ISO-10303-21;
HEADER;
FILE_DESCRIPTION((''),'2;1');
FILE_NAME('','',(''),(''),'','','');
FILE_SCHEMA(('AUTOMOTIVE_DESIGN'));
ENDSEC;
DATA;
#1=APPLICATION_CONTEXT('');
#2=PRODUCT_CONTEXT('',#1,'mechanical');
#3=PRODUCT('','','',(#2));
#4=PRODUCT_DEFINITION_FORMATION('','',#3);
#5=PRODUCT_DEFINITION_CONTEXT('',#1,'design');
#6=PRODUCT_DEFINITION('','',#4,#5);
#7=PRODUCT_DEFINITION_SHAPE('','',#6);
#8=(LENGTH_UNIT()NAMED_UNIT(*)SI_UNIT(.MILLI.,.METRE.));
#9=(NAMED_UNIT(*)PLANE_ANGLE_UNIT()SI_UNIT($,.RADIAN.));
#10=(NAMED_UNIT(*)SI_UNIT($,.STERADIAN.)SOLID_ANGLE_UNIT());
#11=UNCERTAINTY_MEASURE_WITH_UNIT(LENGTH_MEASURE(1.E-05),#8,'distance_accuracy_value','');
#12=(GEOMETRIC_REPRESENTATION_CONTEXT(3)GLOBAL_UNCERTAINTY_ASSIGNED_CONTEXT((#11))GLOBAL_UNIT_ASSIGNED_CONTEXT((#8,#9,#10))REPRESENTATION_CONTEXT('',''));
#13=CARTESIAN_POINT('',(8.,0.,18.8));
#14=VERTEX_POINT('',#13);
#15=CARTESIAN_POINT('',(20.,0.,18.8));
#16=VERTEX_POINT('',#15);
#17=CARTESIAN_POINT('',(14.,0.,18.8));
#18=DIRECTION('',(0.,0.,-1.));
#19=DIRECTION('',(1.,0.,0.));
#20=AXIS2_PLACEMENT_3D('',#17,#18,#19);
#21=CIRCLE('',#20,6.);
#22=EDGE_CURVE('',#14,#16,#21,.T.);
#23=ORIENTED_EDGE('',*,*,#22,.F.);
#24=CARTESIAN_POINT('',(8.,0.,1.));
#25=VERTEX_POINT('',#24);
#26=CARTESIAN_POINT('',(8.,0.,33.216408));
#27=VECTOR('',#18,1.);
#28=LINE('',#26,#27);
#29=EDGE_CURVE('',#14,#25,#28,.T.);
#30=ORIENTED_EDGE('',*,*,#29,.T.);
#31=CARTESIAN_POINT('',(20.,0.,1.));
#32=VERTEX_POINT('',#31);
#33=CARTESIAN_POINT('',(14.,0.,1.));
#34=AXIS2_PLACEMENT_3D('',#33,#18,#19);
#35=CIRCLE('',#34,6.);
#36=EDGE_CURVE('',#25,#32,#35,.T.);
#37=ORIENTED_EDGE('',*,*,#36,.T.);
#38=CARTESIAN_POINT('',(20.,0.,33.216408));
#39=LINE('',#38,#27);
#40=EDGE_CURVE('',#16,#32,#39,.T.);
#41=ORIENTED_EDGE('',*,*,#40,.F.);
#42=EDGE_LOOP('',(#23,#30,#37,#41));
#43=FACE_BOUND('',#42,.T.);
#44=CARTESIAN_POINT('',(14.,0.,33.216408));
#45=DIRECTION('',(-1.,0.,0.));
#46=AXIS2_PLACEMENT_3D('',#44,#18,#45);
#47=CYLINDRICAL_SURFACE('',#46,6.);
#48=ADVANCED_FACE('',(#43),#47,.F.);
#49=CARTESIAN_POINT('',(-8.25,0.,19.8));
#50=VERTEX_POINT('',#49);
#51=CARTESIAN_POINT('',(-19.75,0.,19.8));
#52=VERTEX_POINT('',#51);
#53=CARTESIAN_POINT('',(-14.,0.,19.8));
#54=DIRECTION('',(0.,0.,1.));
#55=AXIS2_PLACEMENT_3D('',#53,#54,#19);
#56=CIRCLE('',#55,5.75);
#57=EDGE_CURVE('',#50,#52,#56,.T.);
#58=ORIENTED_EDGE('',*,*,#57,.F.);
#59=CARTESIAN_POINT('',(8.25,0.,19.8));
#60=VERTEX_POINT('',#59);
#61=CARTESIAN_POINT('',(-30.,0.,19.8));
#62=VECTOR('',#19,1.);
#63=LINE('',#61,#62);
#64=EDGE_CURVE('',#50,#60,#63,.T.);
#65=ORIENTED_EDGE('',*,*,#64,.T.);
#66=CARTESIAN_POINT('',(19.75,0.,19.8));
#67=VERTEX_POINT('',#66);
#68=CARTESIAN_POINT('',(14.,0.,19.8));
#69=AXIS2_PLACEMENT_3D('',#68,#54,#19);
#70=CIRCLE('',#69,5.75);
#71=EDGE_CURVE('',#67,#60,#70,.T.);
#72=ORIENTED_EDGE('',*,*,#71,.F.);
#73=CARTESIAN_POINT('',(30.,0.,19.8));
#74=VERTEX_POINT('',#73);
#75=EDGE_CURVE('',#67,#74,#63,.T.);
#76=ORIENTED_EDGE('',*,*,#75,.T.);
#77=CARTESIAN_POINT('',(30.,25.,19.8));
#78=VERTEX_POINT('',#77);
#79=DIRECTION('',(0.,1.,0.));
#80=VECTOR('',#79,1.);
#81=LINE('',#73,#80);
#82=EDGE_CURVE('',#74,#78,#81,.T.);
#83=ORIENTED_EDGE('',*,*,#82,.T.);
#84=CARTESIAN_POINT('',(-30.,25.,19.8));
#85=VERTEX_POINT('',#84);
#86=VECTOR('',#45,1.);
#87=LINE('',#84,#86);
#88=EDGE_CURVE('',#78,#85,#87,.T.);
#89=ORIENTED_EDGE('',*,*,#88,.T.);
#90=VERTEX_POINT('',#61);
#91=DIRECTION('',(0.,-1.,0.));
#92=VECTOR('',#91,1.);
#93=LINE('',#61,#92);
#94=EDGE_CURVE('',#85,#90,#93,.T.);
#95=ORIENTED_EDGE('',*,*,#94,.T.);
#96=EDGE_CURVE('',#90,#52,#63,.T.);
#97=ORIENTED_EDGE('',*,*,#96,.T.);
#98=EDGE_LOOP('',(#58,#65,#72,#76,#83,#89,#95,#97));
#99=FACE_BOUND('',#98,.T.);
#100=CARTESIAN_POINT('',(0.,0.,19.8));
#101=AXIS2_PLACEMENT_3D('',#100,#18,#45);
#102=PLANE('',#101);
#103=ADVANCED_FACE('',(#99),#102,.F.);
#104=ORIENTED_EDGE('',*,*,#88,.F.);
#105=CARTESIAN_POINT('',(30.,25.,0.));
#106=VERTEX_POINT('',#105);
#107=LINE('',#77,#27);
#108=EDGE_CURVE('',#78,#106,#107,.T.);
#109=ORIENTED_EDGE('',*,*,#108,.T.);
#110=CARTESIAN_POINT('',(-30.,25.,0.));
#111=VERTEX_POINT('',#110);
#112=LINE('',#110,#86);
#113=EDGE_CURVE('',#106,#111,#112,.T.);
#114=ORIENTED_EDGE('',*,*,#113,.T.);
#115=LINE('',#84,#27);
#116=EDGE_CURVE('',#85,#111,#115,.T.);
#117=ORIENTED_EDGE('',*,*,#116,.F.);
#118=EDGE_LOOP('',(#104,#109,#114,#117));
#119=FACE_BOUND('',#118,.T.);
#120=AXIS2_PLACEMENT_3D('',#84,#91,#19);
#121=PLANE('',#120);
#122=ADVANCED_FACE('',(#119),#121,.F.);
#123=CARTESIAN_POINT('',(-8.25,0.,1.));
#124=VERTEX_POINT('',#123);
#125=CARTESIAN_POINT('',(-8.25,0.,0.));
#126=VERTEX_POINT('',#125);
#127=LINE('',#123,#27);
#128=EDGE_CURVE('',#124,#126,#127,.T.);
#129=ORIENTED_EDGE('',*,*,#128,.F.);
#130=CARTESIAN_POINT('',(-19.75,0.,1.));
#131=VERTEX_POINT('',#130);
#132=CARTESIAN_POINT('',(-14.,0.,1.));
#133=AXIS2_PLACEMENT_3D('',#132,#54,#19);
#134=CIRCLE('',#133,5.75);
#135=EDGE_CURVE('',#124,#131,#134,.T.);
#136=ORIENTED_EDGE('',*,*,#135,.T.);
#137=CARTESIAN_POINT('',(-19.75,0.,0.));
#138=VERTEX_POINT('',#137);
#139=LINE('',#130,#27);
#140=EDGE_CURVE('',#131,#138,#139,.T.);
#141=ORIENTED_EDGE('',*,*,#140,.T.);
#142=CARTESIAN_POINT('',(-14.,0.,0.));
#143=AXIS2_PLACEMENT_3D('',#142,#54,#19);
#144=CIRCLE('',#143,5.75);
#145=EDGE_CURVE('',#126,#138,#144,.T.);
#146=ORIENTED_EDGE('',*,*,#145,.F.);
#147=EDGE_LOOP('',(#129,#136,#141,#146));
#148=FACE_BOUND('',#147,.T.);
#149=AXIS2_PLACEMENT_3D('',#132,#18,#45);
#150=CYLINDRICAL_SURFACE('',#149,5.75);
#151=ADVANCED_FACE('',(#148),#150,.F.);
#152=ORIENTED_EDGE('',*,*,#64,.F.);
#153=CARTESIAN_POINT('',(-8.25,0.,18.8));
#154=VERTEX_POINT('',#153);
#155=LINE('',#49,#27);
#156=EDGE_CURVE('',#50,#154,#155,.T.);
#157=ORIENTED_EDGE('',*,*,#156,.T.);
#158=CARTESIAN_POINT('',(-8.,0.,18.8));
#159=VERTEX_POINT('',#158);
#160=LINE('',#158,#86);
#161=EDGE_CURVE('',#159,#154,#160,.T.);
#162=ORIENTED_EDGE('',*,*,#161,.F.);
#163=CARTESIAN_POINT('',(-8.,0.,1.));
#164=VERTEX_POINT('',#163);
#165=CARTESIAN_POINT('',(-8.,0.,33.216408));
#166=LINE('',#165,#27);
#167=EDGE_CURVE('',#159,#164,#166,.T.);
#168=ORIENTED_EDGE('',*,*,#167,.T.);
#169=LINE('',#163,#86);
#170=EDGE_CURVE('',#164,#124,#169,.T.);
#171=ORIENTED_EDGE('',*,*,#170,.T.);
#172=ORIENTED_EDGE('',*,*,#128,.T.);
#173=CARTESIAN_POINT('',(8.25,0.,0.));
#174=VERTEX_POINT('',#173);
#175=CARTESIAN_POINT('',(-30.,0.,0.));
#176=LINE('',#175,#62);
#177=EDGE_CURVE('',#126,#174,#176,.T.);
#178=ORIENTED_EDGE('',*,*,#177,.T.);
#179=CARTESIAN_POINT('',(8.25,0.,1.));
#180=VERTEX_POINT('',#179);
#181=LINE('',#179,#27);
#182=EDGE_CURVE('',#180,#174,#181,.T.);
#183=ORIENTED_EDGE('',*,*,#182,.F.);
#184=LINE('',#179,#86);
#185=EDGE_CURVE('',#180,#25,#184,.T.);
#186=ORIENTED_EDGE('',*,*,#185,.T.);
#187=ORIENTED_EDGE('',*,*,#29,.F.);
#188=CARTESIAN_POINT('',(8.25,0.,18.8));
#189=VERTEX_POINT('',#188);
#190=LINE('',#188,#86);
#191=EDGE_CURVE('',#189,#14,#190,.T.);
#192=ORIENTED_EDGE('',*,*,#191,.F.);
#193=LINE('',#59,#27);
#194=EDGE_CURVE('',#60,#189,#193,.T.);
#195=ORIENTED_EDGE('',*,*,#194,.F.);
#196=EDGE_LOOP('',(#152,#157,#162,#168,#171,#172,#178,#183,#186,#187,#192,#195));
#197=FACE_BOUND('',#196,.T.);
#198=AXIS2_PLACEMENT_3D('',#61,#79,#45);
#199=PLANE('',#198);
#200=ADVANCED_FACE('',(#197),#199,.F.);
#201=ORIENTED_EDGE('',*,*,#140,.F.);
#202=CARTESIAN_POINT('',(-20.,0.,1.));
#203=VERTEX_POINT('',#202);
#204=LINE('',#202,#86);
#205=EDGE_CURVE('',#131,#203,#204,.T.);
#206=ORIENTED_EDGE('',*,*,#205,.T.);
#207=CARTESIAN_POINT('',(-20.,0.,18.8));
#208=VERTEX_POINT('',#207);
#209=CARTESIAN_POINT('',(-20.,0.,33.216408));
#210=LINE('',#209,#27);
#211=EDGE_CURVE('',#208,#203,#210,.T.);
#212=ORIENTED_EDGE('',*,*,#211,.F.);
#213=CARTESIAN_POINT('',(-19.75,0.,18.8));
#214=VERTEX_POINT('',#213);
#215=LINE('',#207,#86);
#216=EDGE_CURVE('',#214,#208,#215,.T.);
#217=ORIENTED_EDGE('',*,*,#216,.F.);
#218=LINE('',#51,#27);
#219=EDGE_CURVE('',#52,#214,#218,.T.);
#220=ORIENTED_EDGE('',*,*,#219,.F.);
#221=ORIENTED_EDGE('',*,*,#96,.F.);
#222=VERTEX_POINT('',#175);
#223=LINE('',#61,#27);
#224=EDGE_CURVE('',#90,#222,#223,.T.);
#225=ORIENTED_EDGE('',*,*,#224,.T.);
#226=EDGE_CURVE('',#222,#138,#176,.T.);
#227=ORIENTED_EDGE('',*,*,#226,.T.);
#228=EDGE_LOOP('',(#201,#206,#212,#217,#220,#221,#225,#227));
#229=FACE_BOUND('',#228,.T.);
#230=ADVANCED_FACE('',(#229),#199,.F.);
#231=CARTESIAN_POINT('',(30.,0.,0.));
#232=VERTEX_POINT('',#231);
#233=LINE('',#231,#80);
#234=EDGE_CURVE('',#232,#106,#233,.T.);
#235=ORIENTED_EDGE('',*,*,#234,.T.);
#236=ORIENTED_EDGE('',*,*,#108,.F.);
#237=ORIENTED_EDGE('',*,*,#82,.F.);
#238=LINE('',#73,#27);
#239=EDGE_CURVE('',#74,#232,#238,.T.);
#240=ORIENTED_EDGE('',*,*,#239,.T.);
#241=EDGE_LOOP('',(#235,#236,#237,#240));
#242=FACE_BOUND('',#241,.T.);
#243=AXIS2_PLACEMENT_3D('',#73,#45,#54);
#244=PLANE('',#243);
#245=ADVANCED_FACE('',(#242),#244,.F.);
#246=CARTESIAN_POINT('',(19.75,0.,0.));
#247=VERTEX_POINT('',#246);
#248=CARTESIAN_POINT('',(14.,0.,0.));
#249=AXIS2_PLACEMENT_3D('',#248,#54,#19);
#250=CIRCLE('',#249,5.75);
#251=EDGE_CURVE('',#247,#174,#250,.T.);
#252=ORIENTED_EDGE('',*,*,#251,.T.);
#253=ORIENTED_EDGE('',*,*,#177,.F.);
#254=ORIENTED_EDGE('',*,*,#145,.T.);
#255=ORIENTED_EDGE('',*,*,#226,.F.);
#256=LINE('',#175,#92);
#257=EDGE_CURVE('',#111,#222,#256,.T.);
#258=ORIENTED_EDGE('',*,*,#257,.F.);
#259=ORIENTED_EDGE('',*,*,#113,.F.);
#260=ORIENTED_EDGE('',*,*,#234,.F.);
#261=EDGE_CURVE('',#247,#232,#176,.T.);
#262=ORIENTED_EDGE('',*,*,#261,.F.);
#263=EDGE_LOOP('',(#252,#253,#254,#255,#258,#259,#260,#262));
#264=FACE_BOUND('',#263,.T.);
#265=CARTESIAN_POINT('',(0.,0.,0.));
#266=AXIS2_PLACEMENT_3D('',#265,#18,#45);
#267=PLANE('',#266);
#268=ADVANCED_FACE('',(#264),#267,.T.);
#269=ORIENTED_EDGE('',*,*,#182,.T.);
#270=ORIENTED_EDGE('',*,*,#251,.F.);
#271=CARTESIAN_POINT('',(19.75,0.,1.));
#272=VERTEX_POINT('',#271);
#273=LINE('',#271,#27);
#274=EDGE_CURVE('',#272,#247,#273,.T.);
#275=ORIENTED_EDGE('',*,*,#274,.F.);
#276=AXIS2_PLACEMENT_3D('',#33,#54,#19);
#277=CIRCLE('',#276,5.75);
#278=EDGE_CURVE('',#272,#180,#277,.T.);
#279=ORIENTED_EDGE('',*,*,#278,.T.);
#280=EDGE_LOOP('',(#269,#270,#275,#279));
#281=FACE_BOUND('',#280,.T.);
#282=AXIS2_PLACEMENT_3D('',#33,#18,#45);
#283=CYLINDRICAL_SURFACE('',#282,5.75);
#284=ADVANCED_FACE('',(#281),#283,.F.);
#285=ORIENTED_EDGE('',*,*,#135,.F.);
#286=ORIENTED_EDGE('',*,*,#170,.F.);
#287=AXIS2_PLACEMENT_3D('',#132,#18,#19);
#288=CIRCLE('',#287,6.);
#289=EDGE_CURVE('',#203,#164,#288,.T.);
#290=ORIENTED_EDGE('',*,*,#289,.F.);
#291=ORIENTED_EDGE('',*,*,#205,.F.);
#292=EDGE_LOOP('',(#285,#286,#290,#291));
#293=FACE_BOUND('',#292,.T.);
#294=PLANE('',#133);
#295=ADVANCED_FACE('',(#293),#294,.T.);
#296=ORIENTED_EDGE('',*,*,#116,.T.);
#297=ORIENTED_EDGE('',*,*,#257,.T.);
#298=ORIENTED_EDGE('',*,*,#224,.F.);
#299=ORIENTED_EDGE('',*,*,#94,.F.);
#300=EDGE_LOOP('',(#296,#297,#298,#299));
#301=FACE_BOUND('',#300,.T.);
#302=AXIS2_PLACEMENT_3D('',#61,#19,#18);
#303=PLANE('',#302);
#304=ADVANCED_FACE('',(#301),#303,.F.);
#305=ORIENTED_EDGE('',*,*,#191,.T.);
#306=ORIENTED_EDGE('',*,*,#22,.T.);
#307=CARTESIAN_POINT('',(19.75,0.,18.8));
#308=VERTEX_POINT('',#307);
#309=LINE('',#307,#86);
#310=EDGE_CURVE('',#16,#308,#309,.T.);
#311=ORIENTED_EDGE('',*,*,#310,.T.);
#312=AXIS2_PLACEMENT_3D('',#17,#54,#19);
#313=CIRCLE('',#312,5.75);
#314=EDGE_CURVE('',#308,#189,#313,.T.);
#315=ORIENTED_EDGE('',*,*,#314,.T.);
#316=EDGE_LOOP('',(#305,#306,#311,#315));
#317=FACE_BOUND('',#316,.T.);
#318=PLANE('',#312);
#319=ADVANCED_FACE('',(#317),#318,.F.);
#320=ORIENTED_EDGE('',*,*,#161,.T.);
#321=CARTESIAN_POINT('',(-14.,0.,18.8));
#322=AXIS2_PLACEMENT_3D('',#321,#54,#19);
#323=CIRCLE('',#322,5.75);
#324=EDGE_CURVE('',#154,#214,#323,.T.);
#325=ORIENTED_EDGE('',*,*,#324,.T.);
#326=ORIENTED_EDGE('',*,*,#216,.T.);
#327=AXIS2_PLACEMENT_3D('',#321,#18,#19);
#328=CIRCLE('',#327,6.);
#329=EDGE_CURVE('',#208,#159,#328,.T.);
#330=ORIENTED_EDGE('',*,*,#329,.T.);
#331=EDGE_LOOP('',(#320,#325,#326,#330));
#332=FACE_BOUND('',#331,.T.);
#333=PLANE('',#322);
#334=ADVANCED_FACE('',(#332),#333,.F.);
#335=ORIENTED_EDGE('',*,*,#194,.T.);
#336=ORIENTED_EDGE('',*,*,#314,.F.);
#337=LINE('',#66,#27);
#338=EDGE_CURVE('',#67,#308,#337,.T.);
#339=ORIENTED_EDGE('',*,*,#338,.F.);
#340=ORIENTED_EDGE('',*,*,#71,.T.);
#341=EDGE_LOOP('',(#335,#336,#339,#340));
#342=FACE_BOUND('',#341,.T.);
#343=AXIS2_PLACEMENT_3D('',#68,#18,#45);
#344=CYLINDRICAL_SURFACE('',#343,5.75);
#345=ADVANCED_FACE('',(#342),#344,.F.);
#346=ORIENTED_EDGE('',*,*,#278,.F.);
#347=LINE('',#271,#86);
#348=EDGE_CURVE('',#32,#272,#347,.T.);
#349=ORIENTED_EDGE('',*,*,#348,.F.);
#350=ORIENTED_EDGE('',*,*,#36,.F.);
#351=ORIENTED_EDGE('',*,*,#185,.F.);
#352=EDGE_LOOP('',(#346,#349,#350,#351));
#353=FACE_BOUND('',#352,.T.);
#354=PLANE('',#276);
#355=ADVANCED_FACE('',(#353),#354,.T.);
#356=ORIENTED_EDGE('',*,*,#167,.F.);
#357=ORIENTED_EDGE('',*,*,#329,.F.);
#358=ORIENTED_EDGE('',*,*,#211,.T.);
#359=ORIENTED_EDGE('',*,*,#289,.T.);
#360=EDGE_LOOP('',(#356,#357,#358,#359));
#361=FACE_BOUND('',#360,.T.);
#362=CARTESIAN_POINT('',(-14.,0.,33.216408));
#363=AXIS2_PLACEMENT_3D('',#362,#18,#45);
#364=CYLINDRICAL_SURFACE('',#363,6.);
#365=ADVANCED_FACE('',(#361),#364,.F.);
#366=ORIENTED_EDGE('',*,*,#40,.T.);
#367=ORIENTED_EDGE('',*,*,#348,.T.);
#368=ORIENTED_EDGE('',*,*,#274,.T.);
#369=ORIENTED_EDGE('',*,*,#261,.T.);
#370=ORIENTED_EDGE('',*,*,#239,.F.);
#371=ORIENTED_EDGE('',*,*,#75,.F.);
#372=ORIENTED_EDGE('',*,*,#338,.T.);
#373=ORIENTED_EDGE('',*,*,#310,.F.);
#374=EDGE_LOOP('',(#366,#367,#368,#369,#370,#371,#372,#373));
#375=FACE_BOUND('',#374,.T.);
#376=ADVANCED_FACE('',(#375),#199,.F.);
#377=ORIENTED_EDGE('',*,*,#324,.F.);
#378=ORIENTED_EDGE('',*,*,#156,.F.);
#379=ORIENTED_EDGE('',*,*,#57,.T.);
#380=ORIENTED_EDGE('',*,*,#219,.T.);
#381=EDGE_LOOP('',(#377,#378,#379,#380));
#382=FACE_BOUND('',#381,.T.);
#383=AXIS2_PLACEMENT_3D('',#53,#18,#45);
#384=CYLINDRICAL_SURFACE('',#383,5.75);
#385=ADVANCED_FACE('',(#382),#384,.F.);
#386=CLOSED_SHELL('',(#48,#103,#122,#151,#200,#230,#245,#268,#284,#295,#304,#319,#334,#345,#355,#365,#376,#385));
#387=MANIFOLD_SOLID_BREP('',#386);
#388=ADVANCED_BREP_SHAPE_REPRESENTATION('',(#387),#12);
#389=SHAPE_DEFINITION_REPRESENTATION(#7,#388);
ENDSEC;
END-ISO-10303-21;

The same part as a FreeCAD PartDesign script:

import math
import FreeCAD as App
import Part
import Sketcher
from FreeCAD import Vector
Q = App.Units.Quantity


def add_polygon(sketch, points):
    """Adds a closed chain of lines whose ends are joined by coincident constraints."""
    first, n = sketch.GeometryCount, len(points)
    for a, b in zip(points, points[1:] + points[:1]):
        sketch.addGeometry(Part.LineSegment(App.Vector(*a, 0), App.Vector(*b, 0)), False)
    for i in range(n):
        sketch.addConstraint(Sketcher.Constraint("Coincident", first + i, 2, first + (i + 1) % n, 1))

doc = App.newDocument("Part")
body = doc.addObject("PartDesign::Body", "Body")

# Sketch on XY plane
sketch1 = doc.addObject("Sketcher::SketchObject", "Sketch")
body.addObject(sketch1)
sketch1.AttachmentSupport = (doc.XY_Plane, [""])
sketch1.MapMode = "FlatFace"
add_polygon(sketch1, [(-30, 25), (-30, 0), (30, 0), (30, 25)])  # lines 0-3
sketch1.addConstraint([
    Sketcher.Constraint("Vertical", 0),
    Sketcher.Constraint("Horizontal", 1),
    Sketcher.Constraint("Vertical", 2),
    Sketcher.Constraint("Horizontal", 3),
    Sketcher.Constraint("Symmetric", 0, 2, 1, 2, -1, 1),
    Sketcher.Constraint("DistanceX", 1, 1, 1, 2, Q("60 mm")),
    Sketcher.Constraint("DistanceY", 0, 2, 0, 1, Q("25 mm")),
])
pad1 = doc.addObject("PartDesign::Pad", "Pad")
body.addObject(pad1)
pad1.Profile = sketch1
pad1.Length = 19.8

# Sketch on XY plane
sketch2 = doc.addObject("Sketcher::SketchObject", "Sketch001")
body.addObject(sketch2)
sketch2.AttachmentSupport = (doc.XY_Plane, [""])
sketch2.MapMode = "FlatFace"
sketch2.addGeometry([
    Part.LineSegment(Vector(20, 0, 0), Vector(8, 0, 0)),
    Part.ArcOfCircle(Part.Circle(Vector(14, 0, 0), Vector(0, 0, 1), 6), math.radians(0), math.radians(180)),
    Part.LineSegment(Vector(-8, 0, 0), Vector(-20, 0, 0)),
    Part.ArcOfCircle(Part.Circle(Vector(-14, 0, 0), Vector(0, 0, 1), 6), math.radians(0), math.radians(180)),
], False)
sketch2.addConstraint([
    Sketcher.Constraint("Coincident", 0, 1, 1, 1),
    Sketcher.Constraint("Coincident", 1, 2, 0, 2),
    Sketcher.Constraint("Coincident", 2, 1, 3, 1),
    Sketcher.Constraint("Coincident", 3, 2, 2, 2),
    Sketcher.Constraint("Horizontal", 0),
    Sketcher.Constraint("Horizontal", 2),
    Sketcher.Constraint("Equal", 1, 3),
    Sketcher.Constraint("Symmetric", 1, 3, 3, 3, -1, 1),
    Sketcher.Constraint("PointOnObject", 1, 3, -1),
    Sketcher.Constraint("PointOnObject", 0, 1, -1),
    Sketcher.Constraint("PointOnObject", 2, 1, -1),
    Sketcher.Constraint("Radius", 1, Q("6 mm")),
    Sketcher.Constraint("DistanceX", -1, 1, 1, 3, Q("14 mm")),
])
pocket1 = doc.addObject("PartDesign::Pocket", "Pocket")
body.addObject(pocket1)
pocket1.Profile = sketch2
pocket1.Length = 19.8
pocket1.Reversed = True

# Sketch on XY plane
sketch3 = doc.addObject("Sketcher::SketchObject", "Sketch002")
body.addObject(sketch3)
sketch3.AttachmentSupport = (doc.XY_Plane, [""])
sketch3.MapMode = "FlatFace"
sketch3.addGeometry([
    Part.LineSegment(Vector(20, 0, 0), Vector(19.75, 0, 0)),  # 0
    Part.ArcOfCircle(Part.Circle(Vector(14, 0, 0), Vector(0, 0, 1), 5.75), math.radians(0), math.radians(180)),  # 1
    Part.LineSegment(Vector(8.25, 0, 0), Vector(8, 0, 0)),  # 2
    Part.ArcOfCircle(Part.Circle(Vector(14, 0, 0), Vector(0, 0, 1), 6), math.radians(0), math.radians(180)),  # 3
    Part.LineSegment(Vector(-8, 0, 0), Vector(-8.25, 0, 0)),  # 4
    Part.ArcOfCircle(Part.Circle(Vector(-14, 0, 0), Vector(0, 0, 1), 5.75), math.radians(0), math.radians(180)),  # 5
    Part.LineSegment(Vector(-19.75, 0, 0), Vector(-20, 0, 0)),  # 6
    Part.ArcOfCircle(Part.Circle(Vector(-14, 0, 0), Vector(0, 0, 1), 6), math.radians(0), math.radians(180)),  # 7
], False)
sketch3.addConstraint([
    Sketcher.Constraint("Coincident", 0, 2, 1, 1),
    Sketcher.Constraint("Coincident", 1, 2, 2, 1),
    Sketcher.Constraint("Coincident", 2, 2, 3, 2),
    Sketcher.Constraint("Coincident", 3, 1, 0, 1),
    Sketcher.Constraint("Coincident", 4, 2, 5, 1),
    Sketcher.Constraint("Coincident", 5, 2, 6, 1),
    Sketcher.Constraint("Coincident", 6, 2, 7, 2),
    Sketcher.Constraint("Coincident", 7, 1, 4, 1),
    Sketcher.Constraint("Horizontal", 0),
    Sketcher.Constraint("Horizontal", 2),
    Sketcher.Constraint("Horizontal", 4),
    Sketcher.Constraint("Horizontal", 6),
    Sketcher.Constraint("Coincident", 3, 3, 1, 3),
    Sketcher.Constraint("Coincident", 7, 3, 5, 3),
    Sketcher.Constraint("Equal", 1, 5),
    Sketcher.Constraint("Equal", 3, 7),
    Sketcher.Constraint("Symmetric", 1, 3, 5, 3, -1, 1),
    Sketcher.Constraint("PointOnObject", 1, 3, -1),
    Sketcher.Constraint("PointOnObject", 0, 2, -1),
    Sketcher.Constraint("PointOnObject", 1, 2, -1),
    Sketcher.Constraint("PointOnObject", 4, 2, -1),
    Sketcher.Constraint("PointOnObject", 5, 2, -1),
    Sketcher.Constraint("Radius", 3, Q("6 mm")),
    Sketcher.Constraint("Radius", 1, Q("5.75 mm")),
    Sketcher.Constraint("DistanceX", -1, 1, 1, 3, Q("14 mm")),
])
pad2 = doc.addObject("PartDesign::Pad", "Pad001")
body.addObject(pad2)
pad2.Profile = sketch3
pad2.Length = 1

# Sketch on XY plane
sketch4 = doc.addObject("Sketcher::SketchObject", "Sketch003")
body.addObject(sketch4)
sketch4.AttachmentSupport = (doc.XY_Plane, [""])
sketch4.MapMode = "FlatFace"
sketch4.AttachmentOffset = App.Placement(Vector(0, 0, 18.8), App.Rotation())
sketch4.addGeometry([
    Part.LineSegment(Vector(20, 0, 0), Vector(19.75, 0, 0)),  # 0
    Part.ArcOfCircle(Part.Circle(Vector(14, 0, 0), Vector(0, 0, 1), 5.75), math.radians(0), math.radians(180)),  # 1
    Part.LineSegment(Vector(8.25, 0, 0), Vector(8, 0, 0)),  # 2
    Part.ArcOfCircle(Part.Circle(Vector(14, 0, 0), Vector(0, 0, 1), 6), math.radians(0), math.radians(180)),  # 3
    Part.LineSegment(Vector(-8, 0, 0), Vector(-8.25, 0, 0)),  # 4
    Part.ArcOfCircle(Part.Circle(Vector(-14, 0, 0), Vector(0, 0, 1), 5.75), math.radians(0), math.radians(180)),  # 5
    Part.LineSegment(Vector(-19.75, 0, 0), Vector(-20, 0, 0)),  # 6
    Part.ArcOfCircle(Part.Circle(Vector(-14, 0, 0), Vector(0, 0, 1), 6), math.radians(0), math.radians(180)),  # 7
], False)
sketch4.addConstraint([
    Sketcher.Constraint("Coincident", 0, 2, 1, 1),
    Sketcher.Constraint("Coincident", 1, 2, 2, 1),
    Sketcher.Constraint("Coincident", 2, 2, 3, 2),
    Sketcher.Constraint("Coincident", 3, 1, 0, 1),
    Sketcher.Constraint("Coincident", 4, 2, 5, 1),
    Sketcher.Constraint("Coincident", 5, 2, 6, 1),
    Sketcher.Constraint("Coincident", 6, 2, 7, 2),
    Sketcher.Constraint("Coincident", 7, 1, 4, 1),
    Sketcher.Constraint("Horizontal", 0),
    Sketcher.Constraint("Horizontal", 2),
    Sketcher.Constraint("Horizontal", 4),
    Sketcher.Constraint("Horizontal", 6),
    Sketcher.Constraint("Coincident", 3, 3, 1, 3),
    Sketcher.Constraint("Coincident", 7, 3, 5, 3),
    Sketcher.Constraint("Equal", 1, 5),
    Sketcher.Constraint("Equal", 3, 7),
    Sketcher.Constraint("Symmetric", 1, 3, 5, 3, -1, 1),
    Sketcher.Constraint("PointOnObject", 1, 3, -1),
    Sketcher.Constraint("PointOnObject", 0, 2, -1),
    Sketcher.Constraint("PointOnObject", 1, 2, -1),
    Sketcher.Constraint("PointOnObject", 4, 2, -1),
    Sketcher.Constraint("PointOnObject", 5, 2, -1),
    Sketcher.Constraint("Radius", 3, Q("6 mm")),
    Sketcher.Constraint("Radius", 1, Q("5.75 mm")),
    Sketcher.Constraint("DistanceX", -1, 1, 1, 3, Q("14 mm")),
])
pad3 = doc.addObject("PartDesign::Pad", "Pad002")
body.addObject(pad3)
pad3.Profile = sketch4
pad3.Length = 1

doc.recompute()
